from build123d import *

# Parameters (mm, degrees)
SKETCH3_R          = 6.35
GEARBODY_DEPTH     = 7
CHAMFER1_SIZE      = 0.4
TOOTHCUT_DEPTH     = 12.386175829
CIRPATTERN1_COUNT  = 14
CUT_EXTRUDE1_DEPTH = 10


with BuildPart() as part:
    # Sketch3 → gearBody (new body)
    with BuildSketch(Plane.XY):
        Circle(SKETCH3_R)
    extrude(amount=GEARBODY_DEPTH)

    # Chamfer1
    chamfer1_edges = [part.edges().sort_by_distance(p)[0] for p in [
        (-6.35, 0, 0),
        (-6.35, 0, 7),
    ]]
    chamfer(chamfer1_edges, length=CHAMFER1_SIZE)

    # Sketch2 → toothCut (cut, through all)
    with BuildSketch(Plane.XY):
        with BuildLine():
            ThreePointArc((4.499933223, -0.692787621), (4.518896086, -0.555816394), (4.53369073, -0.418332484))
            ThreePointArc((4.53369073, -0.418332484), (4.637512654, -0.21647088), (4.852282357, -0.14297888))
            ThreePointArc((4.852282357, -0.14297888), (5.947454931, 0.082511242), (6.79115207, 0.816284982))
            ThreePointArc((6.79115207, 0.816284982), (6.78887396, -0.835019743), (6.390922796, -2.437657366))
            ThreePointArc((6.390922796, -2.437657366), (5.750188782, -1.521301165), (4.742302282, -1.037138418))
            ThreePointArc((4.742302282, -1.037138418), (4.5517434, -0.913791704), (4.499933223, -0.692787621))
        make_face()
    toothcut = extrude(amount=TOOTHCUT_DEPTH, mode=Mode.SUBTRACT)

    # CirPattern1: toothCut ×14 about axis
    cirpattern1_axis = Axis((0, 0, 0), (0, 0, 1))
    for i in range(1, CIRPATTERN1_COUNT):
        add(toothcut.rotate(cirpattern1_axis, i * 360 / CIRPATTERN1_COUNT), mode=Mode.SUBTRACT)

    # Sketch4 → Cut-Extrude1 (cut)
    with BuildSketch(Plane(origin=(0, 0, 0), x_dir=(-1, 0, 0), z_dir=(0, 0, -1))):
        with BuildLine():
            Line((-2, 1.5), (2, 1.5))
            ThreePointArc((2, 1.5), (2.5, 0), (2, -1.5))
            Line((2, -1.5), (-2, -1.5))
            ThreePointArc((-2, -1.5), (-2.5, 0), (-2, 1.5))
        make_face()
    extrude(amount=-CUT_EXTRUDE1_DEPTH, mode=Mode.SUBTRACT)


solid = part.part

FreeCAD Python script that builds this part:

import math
import FreeCAD as App
import Part
import Sketcher

V = App.Vector
Q = App.Units.Quantity


def edges_at(feature, points):
    """Names of the edges that pass closest to the given points."""
    edges = feature.Shape.Edges
    near = lambda p: min(range(len(edges)), key=lambda i: edges[i].distToShape(Part.Vertex(*p))[0])
    return sorted({f"Edge{near(p) + 1}" for p in points})

doc = App.newDocument("Part")
body = doc.addObject("PartDesign::Body", "Body")

sketch1 = body.newObject("Sketcher::SketchObject", "Sketch")
sketch1.AttachmentSupport = (doc.getObject("XY_Plane"), [""])
sketch1.MapMode = "FlatFace"
sketch1.addGeometry(Part.Circle(V(0, 0, 0), V(0, 0, 1), 6), False)
sketch1.addConstraint([
    Sketcher.Constraint("Coincident", 0, 3, -1, 1),
    Sketcher.Constraint("Diameter", 0, Q("12.7 mm")),
])
pad1 = body.newObject("PartDesign::Pad", "Pad")
pad1.Profile = sketch1
pad1.Length = 7
doc.recompute()

chamfer = body.newObject("PartDesign::Chamfer", "Chamfer")
chamfer.Base = (pad1, edges_at(pad1, [(-6.35, 0, 0), (-6.35, 0, 7)]))
chamfer.Size = 0.4

sketch2 = body.newObject("Sketcher::SketchObject", "Sketch001")
sketch2.AttachmentSupport = (doc.getObject("XY_Plane"), [""])
sketch2.MapMode = "FlatFace"
sketch2.addGeometry([
    Part.ArcOfCircle(Part.Circle(V(0, 0, 0), V(0, 0, 1), 4.55), math.radians(-8.75), math.radians(-5.27)),
    Part.ArcOfCircle(Part.Circle(V(4.8, -0.74, 0), V(0, 0, 1), 0.3), math.radians(171), math.radians(259)),
    Part.ArcOfCircle(Part.Circle(V(4.32, -3.2, 0), V(0, 0, 1), 2.2), math.radians(20), math.radians(79)),
    Part.ArcOfCircle(Part.Circle(V(0, 0, 0), V(0, 0, 1), 6.84), math.radians(-21), math.radians(7)),
    Part.ArcOfCircle(Part.Circle(V(4.97, 2.06, 0), V(0, 0, 1), 2.2), math.radians(-93), math.radians(-34)),
    Part.ArcOfCircle(Part.Circle(V(4.84, -0.45, 0), V(0, 0, 1), 0.3), math.radians(87), math.radians(175)),
], False)
sketch2.addConstraint([
    Sketcher.Constraint("Tangent", 0, 1, 1, 1),
    Sketcher.Constraint("Tangent", 1, 2, 2, 2),
    Sketcher.Constraint("Coincident", 2, 1, 3, 1),
    Sketcher.Constraint("Coincident", 3, 2, 4, 2),
    Sketcher.Constraint("Tangent", 4, 1, 5, 1),
    Sketcher.Constraint("Tangent", 5, 2, 0, 2),
    Sketcher.Constraint("Coincident", 0, 3, -1, 1),
    Sketcher.Constraint("Coincident", 3, 3, -1, 1),
    Sketcher.Constraint("Equal", 2, 4),
    Sketcher.Constraint("Equal", 1, 5),
    Sketcher.Constraint("Radius", 0, Q("4.55295 mm")),
    Sketcher.Constraint("Radius", 1, Q("0.303689 mm")),
    Sketcher.Constraint("Radius", 2, Q("2.204671 mm")),
    Sketcher.Constraint("Radius", 3, Q("6.840034 mm")),
    Sketcher.Constraint("DistanceY", 1, 2, -1, 1, Q("1.037138 mm")),
    Sketcher.Constraint("DistanceY", 4, 1, -1, 1, Q("0.142979 mm")),
    Sketcher.Constraint("DistanceX", 2, 3, 1, 3, Q("0.47727 mm")),
    Sketcher.Constraint("DistanceY", 2, 3, 4, 3, Q("5.260091 mm")),
])
pocket1 = body.newObject("PartDesign::Pocket", "Pocket")
pocket1.Profile = sketch2
pocket1.Type = "ThroughAll"
pocket1.Reversed = True
doc.recompute()

polarpattern = body.newObject("PartDesign::PolarPattern", "PolarPattern")
polarpattern.Originals = [pocket1]
polarpattern.Axis = (doc.getObject("Z_Axis"), [""])
polarpattern.Angle = 360
polarpattern.Occurrences = 14
body.Tip = polarpattern

sketch3 = body.newObject("Sketcher::SketchObject", "Sketch002")
sketch3.AttachmentSupport = (doc.getObject("XY_Plane"), [""])
sketch3.MapMode = "FlatFace"
sketch3.addGeometry([
    Part.LineSegment(V(-2, 1.5, 0), V(2, 1.5, 0)),
    Part.ArcOfCircle(Part.Circle(V(0, 0, 0), V(0, 0, 1), 2.5), math.radians(-37), math.radians(37)),
    Part.LineSegment(V(2, -1.5, 0), V(-2, -1.5, 0)),
    Part.ArcOfCircle(Part.Circle(V(0, 0, 0), V(0, 0, 1), 2.5), math.radians(143), math.radians(217)),
], False)
sketch3.addConstraint([
    Sketcher.Constraint("Coincident", 0, 2, 1, 2),
    Sketcher.Constraint("Coincident", 1, 1, 2, 1),
    Sketcher.Constraint("Coincident", 2, 2, 3, 2),
    Sketcher.Constraint("Coincident", 3, 1, 0, 1),
    Sketcher.Constraint("Horizontal", 0),
    Sketcher.Constraint("Horizontal", 2),
    Sketcher.Constraint("Coincident", 1, 3, -1, 1),
    Sketcher.Constraint("Coincident", 3, 3, -1, 1),
    Sketcher.Constraint("Equal", 1, 3),
    Sketcher.Constraint("Vertical", 0, 2, 1, 1),
    Sketcher.Constraint("Radius", 1, Q("2.5 mm")),
    Sketcher.Constraint("DistanceX", 0, 1, 0, 2, Q("4 mm")),
])
pocket2 = body.newObject("PartDesign::Pocket", "Pocket001")
pocket2.Profile = sketch3
pocket2.Length = 10
pocket2.Reversed = True

doc.recompute()
